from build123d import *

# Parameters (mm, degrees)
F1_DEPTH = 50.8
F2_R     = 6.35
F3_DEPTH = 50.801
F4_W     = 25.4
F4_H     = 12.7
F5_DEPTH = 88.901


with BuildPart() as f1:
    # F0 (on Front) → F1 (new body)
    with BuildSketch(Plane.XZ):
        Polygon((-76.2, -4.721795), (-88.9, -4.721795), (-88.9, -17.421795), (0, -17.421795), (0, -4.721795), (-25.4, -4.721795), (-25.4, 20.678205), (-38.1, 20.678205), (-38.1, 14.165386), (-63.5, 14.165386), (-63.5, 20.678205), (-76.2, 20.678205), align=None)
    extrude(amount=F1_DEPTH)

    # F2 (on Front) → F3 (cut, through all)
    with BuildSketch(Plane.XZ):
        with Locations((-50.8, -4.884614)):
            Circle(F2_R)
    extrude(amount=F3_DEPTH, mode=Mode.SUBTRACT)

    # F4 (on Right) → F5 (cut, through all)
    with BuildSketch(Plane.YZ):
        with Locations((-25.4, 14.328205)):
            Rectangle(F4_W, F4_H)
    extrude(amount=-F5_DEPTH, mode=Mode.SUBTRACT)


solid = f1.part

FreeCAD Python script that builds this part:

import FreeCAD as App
import Part
import Sketcher
from FreeCAD import Vector
Q = App.Units.Quantity


def add_polygon(sketch, points):
    """Adds a closed chain of lines whose ends are joined by coincident constraints."""
    first, n = sketch.GeometryCount, len(points)
    for a, b in zip(points, points[1:] + points[:1]):
        sketch.addGeometry(Part.LineSegment(App.Vector(*a, 0), App.Vector(*b, 0)), False)
    for i in range(n):
        sketch.addConstraint(Sketcher.Constraint("Coincident", first + i, 2, first + (i + 1) % n, 1))

doc = App.newDocument("Part")
body = doc.addObject("PartDesign::Body", "Body")

sketch1 = doc.addObject("Sketcher::SketchObject", "Sketch")
body.addObject(sketch1)
sketch1.AttachmentSupport = (doc.XZ_Plane, [""])
sketch1.MapMode = "FlatFace"
add_polygon(sketch1, [(-76, -5), (-89, -5), (-89, -17), (0, -17), (0, -5), (-25, -5), (-25, 21), (-38, 21), (-38, 14), (-64, 14), (-64, 21), (-76, 21)])
sketch1.addConstraint(Sketcher.Constraint("Horizontal", 0))
sketch1.addConstraint(Sketcher.Constraint("Vertical", 1))
sketch1.addConstraint(Sketcher.Constraint("Horizontal", 2))
sketch1.addConstraint(Sketcher.Constraint("Vertical", 3))
sketch1.addConstraint(Sketcher.Constraint("Horizontal", 4))
sketch1.addConstraint(Sketcher.Constraint("Vertical", 5))
sketch1.addConstraint(Sketcher.Constraint("Horizontal", 6))
sketch1.addConstraint(Sketcher.Constraint("Vertical", 7))
sketch1.addConstraint(Sketcher.Constraint("Horizontal", 8))
sketch1.addConstraint(Sketcher.Constraint("Vertical", 9))
sketch1.addConstraint(Sketcher.Constraint("Horizontal", 10))
sketch1.addConstraint(Sketcher.Constraint("Vertical", 11))
sketch1.addConstraint(Sketcher.Constraint("PointOnObject", 2, 2, -2))
sketch1.addConstraint(Sketcher.Constraint("Horizontal", 0, 2, 3, 2))
sketch1.addConstraint(Sketcher.Constraint("Horizontal", 6, 2, 9, 2))
sketch1.addConstraint(Sketcher.Constraint("Equal", 0, 6))
sketch1.addConstraint(Sketcher.Constraint("Equal", 4, 8))
sketch1.addConstraint(Sketcher.Constraint("Equal", 6, 10))
sketch1.addConstraint(Sketcher.Constraint("Equal", 10, 1))
sketch1.addConstraint(Sketcher.Constraint("Equal", 8, 5))
sketch1.addConstraint(Sketcher.Constraint("DistanceX", 4, 2, 4, 1, Q("1 in")))
sketch1.addConstraint(Sketcher.Constraint("DistanceX", 0, 2, 0, 1, Q("0.5 in")))
sketch1.addConstraint(Sketcher.Constraint("DistanceY", 7, 2, 7, 1, Q("6.512819 mm")))
sketch1.addConstraint(Sketcher.Constraint("DistanceY", 0, 2, -1, 1, Q("4.721795 mm")))
pad1 = doc.addObject("PartDesign::Pad", "Pad")
body.addObject(pad1)
pad1.Profile = sketch1
pad1.Length = Q("2 in")

sketch2 = doc.addObject("Sketcher::SketchObject", "Sketch001")
body.addObject(sketch2)
sketch2.AttachmentSupport = (doc.XZ_Plane, [""])
sketch2.MapMode = "FlatFace"
sketch2.addGeometry(Part.Circle(Vector(-51, -5, 0), Vector(0, 0, 1), 6), False)
sketch2.addConstraint(Sketcher.Constraint("Diameter", 0, Q("0.5 in")))
sketch2.addConstraint(Sketcher.Constraint("DistanceX", 0, 3, -1, 1, Q("2 in")))
sketch2.addConstraint(Sketcher.Constraint("DistanceY", 0, 3, -1, 1, Q("4.884614 mm")))
pocket1 = doc.addObject("PartDesign::Pocket", "Pocket")
body.addObject(pocket1)
pocket1.Profile = sketch2
pocket1.Type = "ThroughAll"
pocket1.Reversed = True

sketch3 = doc.addObject("Sketcher::SketchObject", "Sketch002")
body.addObject(sketch3)
sketch3.AttachmentSupport = (doc.YZ_Plane, [""])
sketch3.MapMode = "FlatFace"
add_polygon(sketch3, [(-38, 21), (-38, 8), (-13, 8), (-13, 21)])
sketch3.addConstraint(Sketcher.Constraint("Vertical", 0))
sketch3.addConstraint(Sketcher.Constraint("Horizontal", 1))
sketch3.addConstraint(Sketcher.Constraint("Vertical", 2))
sketch3.addConstraint(Sketcher.Constraint("Horizontal", 3))
sketch3.addConstraint(Sketcher.Constraint("DistanceX", 1, 1, 1, 2, Q("1 in")))
sketch3.addConstraint(Sketcher.Constraint("DistanceY", 0, 2, 0, 1, Q("0.5 in")))
sketch3.addConstraint(Sketcher.Constraint("DistanceX", 0, 2, -1, 1, Q("1.5 in")))
sketch3.addConstraint(Sketcher.Constraint("DistanceY", -1, 1, 0, 2, Q("7.978205 mm")))
pocket2 = doc.addObject("PartDesign::Pocket", "Pocket001")
body.addObject(pocket2)
pocket2.Profile = sketch3
pocket2.Type = "ThroughAll"

doc.recompute()
